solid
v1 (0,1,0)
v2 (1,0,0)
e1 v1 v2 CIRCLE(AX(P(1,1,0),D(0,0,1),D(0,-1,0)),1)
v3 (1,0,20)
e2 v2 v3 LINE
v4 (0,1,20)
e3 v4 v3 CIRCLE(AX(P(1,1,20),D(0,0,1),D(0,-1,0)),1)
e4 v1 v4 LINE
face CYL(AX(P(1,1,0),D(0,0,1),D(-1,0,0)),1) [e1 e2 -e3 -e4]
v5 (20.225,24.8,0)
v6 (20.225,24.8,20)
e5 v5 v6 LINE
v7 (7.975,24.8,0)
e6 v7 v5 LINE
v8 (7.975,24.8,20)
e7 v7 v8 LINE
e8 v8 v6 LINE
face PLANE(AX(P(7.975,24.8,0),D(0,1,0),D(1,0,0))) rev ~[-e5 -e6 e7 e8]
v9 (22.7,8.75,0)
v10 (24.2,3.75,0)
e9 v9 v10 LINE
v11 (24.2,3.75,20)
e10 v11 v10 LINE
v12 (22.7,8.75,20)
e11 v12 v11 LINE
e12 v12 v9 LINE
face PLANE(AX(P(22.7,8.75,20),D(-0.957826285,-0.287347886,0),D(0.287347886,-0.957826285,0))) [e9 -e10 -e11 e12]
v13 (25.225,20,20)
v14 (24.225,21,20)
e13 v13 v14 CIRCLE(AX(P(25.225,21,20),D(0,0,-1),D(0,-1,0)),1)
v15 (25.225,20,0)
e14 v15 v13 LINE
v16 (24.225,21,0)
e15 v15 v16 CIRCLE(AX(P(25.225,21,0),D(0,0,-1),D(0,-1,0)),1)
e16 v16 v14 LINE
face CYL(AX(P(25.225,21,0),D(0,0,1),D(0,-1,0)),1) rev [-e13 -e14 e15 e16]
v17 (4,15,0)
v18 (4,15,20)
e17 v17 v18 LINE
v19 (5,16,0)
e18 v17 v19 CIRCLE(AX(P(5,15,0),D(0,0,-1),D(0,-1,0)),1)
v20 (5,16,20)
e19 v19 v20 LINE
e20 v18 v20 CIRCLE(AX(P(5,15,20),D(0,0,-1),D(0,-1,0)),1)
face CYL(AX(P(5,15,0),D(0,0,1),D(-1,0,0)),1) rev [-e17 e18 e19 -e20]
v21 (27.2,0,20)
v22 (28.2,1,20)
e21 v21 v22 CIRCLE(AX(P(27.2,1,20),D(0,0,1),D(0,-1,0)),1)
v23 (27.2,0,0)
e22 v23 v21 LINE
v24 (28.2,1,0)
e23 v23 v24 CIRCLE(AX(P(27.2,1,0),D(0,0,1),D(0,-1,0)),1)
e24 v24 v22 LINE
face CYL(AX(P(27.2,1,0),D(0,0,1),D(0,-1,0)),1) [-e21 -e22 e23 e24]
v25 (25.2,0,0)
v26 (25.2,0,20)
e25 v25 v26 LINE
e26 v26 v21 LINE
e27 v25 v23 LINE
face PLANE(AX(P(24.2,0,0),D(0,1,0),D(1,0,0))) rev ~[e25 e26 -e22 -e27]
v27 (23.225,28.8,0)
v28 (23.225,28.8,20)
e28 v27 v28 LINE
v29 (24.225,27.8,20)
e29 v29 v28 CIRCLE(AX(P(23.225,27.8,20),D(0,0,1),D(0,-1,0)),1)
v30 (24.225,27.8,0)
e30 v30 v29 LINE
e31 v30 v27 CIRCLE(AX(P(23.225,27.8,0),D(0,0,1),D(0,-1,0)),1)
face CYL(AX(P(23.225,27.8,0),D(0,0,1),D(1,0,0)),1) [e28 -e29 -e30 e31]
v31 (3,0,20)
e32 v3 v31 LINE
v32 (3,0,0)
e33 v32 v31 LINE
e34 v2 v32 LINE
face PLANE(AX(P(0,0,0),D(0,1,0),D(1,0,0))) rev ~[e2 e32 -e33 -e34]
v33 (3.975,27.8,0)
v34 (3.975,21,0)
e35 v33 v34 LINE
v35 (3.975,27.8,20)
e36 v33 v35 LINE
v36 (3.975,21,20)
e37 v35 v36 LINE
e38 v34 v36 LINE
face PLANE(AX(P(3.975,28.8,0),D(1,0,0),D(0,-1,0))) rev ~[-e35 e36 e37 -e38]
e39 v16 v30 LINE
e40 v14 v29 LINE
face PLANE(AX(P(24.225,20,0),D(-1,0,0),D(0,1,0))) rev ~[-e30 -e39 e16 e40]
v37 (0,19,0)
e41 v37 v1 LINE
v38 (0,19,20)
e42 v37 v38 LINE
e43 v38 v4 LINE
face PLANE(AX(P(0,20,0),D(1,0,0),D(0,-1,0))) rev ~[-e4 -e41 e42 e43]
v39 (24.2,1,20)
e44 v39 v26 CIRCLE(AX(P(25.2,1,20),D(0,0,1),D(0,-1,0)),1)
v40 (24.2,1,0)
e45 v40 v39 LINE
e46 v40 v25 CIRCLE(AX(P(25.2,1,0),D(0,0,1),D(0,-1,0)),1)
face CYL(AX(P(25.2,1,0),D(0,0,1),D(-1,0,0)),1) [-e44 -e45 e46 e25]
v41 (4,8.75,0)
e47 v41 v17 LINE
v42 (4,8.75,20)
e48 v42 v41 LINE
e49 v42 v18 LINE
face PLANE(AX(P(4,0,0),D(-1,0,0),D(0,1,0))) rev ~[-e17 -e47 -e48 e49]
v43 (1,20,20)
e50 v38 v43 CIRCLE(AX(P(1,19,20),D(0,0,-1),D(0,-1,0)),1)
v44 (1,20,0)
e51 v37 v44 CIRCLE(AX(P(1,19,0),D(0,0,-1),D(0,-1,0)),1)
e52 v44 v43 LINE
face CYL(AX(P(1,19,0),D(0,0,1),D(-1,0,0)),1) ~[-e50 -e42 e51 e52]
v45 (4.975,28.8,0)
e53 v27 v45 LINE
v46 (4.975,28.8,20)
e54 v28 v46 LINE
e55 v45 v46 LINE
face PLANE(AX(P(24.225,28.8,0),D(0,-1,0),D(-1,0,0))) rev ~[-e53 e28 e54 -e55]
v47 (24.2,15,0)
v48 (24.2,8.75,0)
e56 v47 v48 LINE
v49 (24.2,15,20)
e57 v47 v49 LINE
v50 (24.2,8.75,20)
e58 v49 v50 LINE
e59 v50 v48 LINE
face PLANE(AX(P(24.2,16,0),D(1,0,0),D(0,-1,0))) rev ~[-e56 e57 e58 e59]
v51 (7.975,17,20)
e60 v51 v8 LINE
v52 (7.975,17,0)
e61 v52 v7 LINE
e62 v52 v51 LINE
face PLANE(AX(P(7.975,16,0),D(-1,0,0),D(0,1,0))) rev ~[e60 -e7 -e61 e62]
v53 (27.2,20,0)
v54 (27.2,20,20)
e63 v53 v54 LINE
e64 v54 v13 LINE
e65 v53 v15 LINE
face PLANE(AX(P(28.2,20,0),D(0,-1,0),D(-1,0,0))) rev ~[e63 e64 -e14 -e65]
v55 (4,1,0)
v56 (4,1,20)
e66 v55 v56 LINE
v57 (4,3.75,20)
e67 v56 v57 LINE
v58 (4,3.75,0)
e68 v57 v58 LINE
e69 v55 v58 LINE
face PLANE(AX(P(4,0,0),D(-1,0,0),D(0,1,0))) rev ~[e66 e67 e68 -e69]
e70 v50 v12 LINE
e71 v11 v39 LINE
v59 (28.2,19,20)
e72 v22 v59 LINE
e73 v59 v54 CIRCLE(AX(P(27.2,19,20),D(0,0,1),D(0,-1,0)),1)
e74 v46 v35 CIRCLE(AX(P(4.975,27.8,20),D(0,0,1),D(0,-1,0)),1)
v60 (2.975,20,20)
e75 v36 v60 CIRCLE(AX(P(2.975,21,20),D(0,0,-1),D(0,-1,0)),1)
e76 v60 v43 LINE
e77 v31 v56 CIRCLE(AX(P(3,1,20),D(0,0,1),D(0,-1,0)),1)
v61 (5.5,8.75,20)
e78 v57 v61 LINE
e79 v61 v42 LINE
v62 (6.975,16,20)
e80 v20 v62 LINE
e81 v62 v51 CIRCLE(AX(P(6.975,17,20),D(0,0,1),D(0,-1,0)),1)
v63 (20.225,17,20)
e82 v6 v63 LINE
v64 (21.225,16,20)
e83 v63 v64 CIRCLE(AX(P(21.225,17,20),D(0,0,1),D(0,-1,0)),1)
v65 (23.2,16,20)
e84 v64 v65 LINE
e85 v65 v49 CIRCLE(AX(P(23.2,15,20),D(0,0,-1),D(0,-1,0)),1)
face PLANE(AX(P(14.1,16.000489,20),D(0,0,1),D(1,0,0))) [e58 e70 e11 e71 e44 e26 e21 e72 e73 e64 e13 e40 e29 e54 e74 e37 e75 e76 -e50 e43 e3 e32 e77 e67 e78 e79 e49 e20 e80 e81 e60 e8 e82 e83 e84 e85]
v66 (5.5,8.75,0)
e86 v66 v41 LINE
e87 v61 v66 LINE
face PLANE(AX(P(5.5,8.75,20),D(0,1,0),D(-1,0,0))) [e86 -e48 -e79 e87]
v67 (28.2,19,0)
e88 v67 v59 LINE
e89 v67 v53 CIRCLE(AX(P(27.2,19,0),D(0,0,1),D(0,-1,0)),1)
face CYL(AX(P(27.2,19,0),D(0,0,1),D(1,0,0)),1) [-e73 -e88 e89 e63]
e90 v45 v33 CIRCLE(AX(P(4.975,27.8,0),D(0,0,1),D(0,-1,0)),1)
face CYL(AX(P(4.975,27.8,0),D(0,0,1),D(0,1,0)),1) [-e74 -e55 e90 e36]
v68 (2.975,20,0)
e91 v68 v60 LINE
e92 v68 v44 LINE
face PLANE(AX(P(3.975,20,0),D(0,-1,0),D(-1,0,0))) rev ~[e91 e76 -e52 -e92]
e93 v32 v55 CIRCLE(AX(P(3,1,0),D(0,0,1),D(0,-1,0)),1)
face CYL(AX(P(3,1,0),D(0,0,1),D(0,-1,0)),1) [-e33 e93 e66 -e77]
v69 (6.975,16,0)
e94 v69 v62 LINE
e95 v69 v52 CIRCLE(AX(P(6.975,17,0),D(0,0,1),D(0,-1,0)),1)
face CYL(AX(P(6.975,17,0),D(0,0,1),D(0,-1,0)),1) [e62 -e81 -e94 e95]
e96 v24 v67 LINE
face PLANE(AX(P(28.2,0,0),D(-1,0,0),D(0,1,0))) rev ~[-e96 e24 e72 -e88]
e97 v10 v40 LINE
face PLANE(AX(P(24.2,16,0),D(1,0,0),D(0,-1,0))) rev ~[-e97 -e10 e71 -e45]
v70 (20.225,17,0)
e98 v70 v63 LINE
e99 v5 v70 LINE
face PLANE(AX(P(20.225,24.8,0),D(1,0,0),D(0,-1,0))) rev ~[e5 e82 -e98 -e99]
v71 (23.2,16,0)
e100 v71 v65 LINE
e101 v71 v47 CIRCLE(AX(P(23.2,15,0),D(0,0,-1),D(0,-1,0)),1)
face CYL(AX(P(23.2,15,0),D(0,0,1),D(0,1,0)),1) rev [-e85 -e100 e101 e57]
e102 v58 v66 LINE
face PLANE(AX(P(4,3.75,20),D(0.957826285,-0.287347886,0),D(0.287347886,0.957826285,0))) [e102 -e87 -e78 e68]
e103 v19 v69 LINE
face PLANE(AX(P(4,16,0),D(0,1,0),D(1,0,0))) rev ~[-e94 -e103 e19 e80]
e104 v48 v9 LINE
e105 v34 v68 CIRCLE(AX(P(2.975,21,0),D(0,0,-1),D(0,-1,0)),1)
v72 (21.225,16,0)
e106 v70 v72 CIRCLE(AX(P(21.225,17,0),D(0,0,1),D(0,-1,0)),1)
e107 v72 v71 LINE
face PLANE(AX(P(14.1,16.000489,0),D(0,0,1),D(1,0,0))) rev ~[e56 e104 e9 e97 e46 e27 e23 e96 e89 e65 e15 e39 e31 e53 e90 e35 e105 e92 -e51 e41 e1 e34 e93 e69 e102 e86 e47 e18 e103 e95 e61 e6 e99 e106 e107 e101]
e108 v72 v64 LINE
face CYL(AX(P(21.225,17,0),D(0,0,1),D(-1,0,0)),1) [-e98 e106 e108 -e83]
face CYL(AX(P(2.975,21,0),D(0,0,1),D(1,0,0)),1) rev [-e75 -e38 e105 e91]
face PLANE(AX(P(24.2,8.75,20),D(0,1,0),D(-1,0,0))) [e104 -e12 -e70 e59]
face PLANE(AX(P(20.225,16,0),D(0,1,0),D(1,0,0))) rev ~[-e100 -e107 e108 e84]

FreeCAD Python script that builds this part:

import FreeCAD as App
import Part
import Sketcher
Q = App.Units.Quantity


def edges_at(feature, points):
    """Names of the edges that pass closest to the given points."""
    edges = feature.Shape.Edges
    near = lambda p: min(range(len(edges)), key=lambda i: edges[i].distToShape(Part.Vertex(*p))[0])
    return sorted({f"Edge{near(p) + 1}" for p in points})

doc = App.newDocument("Part")
body = doc.addObject("PartDesign::Body", "Body")

# Sketch on XY plane
sketch1 = body.newObject("Sketcher::SketchObject", "Sketch")
sketch1.AttachmentSupport = (doc.getObject("XY_Plane"), [""])
sketch1.MapMode = "FlatFace"
sketch1.addGeometry([
    Part.LineSegment(App.Vector(0, 20, 0), App.Vector(0, 0, 0)),  # 0
    Part.LineSegment(App.Vector(0, 0, 0), App.Vector(4, 0, 0)),  # 1
    Part.LineSegment(App.Vector(4, 0, 0), App.Vector(4, 16, 0)),  # 2
    Part.LineSegment(App.Vector(4, 16, 0), App.Vector(7.975, 16, 0)),  # 3
    Part.LineSegment(App.Vector(7.975, 16, 0), App.Vector(7.975, 24.8, 0)),  # 4
    Part.LineSegment(App.Vector(7.975, 24.8, 0), App.Vector(20.225, 24.8, 0)),  # 5
    Part.LineSegment(App.Vector(20.225, 24.8, 0), App.Vector(20.225, 16, 0)),  # 6
    Part.LineSegment(App.Vector(20.225, 16, 0), App.Vector(24.2, 16, 0)),  # 7
    Part.LineSegment(App.Vector(24.2, 16, 0), App.Vector(24.2, 0, 0)),  # 8
    Part.LineSegment(App.Vector(24.2, 0, 0), App.Vector(28.2, 0, 0)),  # 9
    Part.LineSegment(App.Vector(28.2, 0, 0), App.Vector(28.2, 20, 0)),  # 10
    Part.LineSegment(App.Vector(28.2, 20, 0), App.Vector(24.225, 20, 0)),  # 11
    Part.LineSegment(App.Vector(24.225, 20, 0), App.Vector(24.225, 28.8, 0)),  # 12
    Part.LineSegment(App.Vector(24.225, 28.8, 0), App.Vector(3.975, 28.8, 0)),  # 13
    Part.LineSegment(App.Vector(3.975, 28.8, 0), App.Vector(3.975, 20, 0)),  # 14
    Part.LineSegment(App.Vector(3.975, 20, 0), App.Vector(0, 20, 0)),  # 15
], False)
sketch1.addConstraint([
    Sketcher.Constraint("Coincident", 0, 2, 1, 1),
    Sketcher.Constraint("Coincident", 1, 2, 2, 1),
    Sketcher.Constraint("Coincident", 2, 2, 3, 1),
    Sketcher.Constraint("Coincident", 3, 2, 4, 1),
    Sketcher.Constraint("Coincident", 4, 2, 5, 1),
    Sketcher.Constraint("Coincident", 5, 2, 6, 1),
    Sketcher.Constraint("Coincident", 6, 2, 7, 1),
    Sketcher.Constraint("Coincident", 7, 2, 8, 1),
    Sketcher.Constraint("Coincident", 8, 2, 9, 1),
    Sketcher.Constraint("Coincident", 9, 2, 10, 1),
    Sketcher.Constraint("Coincident", 10, 2, 11, 1),
    Sketcher.Constraint("Coincident", 11, 2, 12, 1),
    Sketcher.Constraint("Coincident", 12, 2, 13, 1),
    Sketcher.Constraint("Coincident", 13, 2, 14, 1),
    Sketcher.Constraint("Coincident", 14, 2, 15, 1),
    Sketcher.Constraint("Coincident", 15, 2, 0, 1),
    Sketcher.Constraint("Vertical", 0),
    Sketcher.Constraint("Horizontal", 1),
    Sketcher.Constraint("Vertical", 2),
    Sketcher.Constraint("Horizontal", 3),
    Sketcher.Constraint("Vertical", 4),
    Sketcher.Constraint("Horizontal", 5),
    Sketcher.Constraint("Vertical", 6),
    Sketcher.Constraint("Horizontal", 7),
    Sketcher.Constraint("Vertical", 8),
    Sketcher.Constraint("Horizontal", 9),
    Sketcher.Constraint("Vertical", 10),
    Sketcher.Constraint("Horizontal", 11),
    Sketcher.Constraint("Vertical", 12),
    Sketcher.Constraint("Horizontal", 13),
    Sketcher.Constraint("Vertical", 14),
    Sketcher.Constraint("Horizontal", 15),
    Sketcher.Constraint("Coincident", 0, 2, -1, 1),
    Sketcher.Constraint("PointOnObject", 8, 2, -1),
    Sketcher.Constraint("Horizontal", 3, 2, 6, 2),
    Sketcher.Constraint("Horizontal", 11, 2, 14, 2),
    Sketcher.Constraint("Equal", 3, 7),
    Sketcher.Constraint("Equal", 1, 9),
    Sketcher.Constraint("Equal", 7, 11),
    Sketcher.Constraint("Equal", 11, 15),
    Sketcher.Constraint("Equal", 6, 12),
    Sketcher.Constraint("DistanceX", 1, 1, 1, 2, Q("4 mm")),
    Sketcher.Constraint("DistanceY", 0, 2, 0, 1, Q("20 mm")),
    Sketcher.Constraint("DistanceY", 2, 1, 2, 2, Q("16 mm")),
    Sketcher.Constraint("DistanceY", 4, 1, 4, 2, Q("8.8 mm")),
    Sketcher.Constraint("DistanceX", 5, 1, 5, 2, Q("12.25 mm")),
    Sketcher.Constraint("DistanceX", -1, 1, 7, 2, Q("24.2 mm")),
])
pad1 = body.newObject("PartDesign::Pad", "Pad")
pad1.Profile = sketch1
pad1.Length = 20
doc.recompute()

fillet = body.newObject("PartDesign::Fillet", "Fillet")
fillet.Base = (pad1, edges_at(pad1, [
    (4, 16, 10),
    (24.2, 16, 10),
    (7.975, 16, 10),
    (20.225, 16, 10),
    (0, 0, 10),
    (4, 0, 10),
    (24.2, 0, 10),
    (28.2, 0, 10),
    (0, 20, 10),
    (3.975, 28.8, 10),
    (3.975, 20, 10),
    (24.225, 28.8, 10),
    (24.225, 20, 10),
    (28.2, 20, 10),
]))
fillet.Radius = 1

# Sketch on XY plane
sketch2 = body.newObject("Sketcher::SketchObject", "Sketch001")
sketch2.AttachmentSupport = (doc.getObject("XY_Plane"), [""])
sketch2.MapMode = "FlatFace"
sketch2.AttachmentOffset = App.Placement(App.Vector(0, 0, 20), App.Rotation())
sketch2.addGeometry([
    Part.LineSegment(App.Vector(5.5, 8.75, 0), App.Vector(4, 8.75, 0)),  # 0
    Part.LineSegment(App.Vector(4, 8.75, 0), App.Vector(4, 3.75, 0)),  # 1
    Part.LineSegment(App.Vector(4, 3.75, 0), App.Vector(5.5, 8.75, 0)),  # 2
    Part.LineSegment(App.Vector(24.2, 3.75, 0), App.Vector(24.2, 8.75, 0)),  # 3
    Part.LineSegment(App.Vector(24.2, 8.75, 0), App.Vector(22.7, 8.75, 0)),  # 4
    Part.LineSegment(App.Vector(22.7, 8.75, 0), App.Vector(24.2, 3.75, 0)),  # 5
], False)
sketch2.addConstraint([
    Sketcher.Constraint("Coincident", 0, 2, 1, 1),
    Sketcher.Constraint("Coincident", 1, 2, 2, 1),
    Sketcher.Constraint("Coincident", 2, 2, 0, 1),
    Sketcher.Constraint("Coincident", 3, 2, 4, 1),
    Sketcher.Constraint("Coincident", 4, 2, 5, 1),
    Sketcher.Constraint("Coincident", 5, 2, 3, 1),
    Sketcher.Constraint("Horizontal", 0),
    Sketcher.Constraint("Vertical", 1),
    Sketcher.Constraint("Vertical", 3),
    Sketcher.Constraint("Horizontal", 4),
    Sketcher.Constraint("Horizontal", 2, 2, 3, 2),
    Sketcher.Constraint("Horizontal", 1, 2, 5, 2),
    Sketcher.Constraint("Equal", 0, 4),
    Sketcher.Constraint("DistanceY", 1, 2, 1, 1, Q("5 mm")),
    Sketcher.Constraint("DistanceX", 0, 2, 0, 1, Q("1.5 mm")),
    Sketcher.Constraint("DistanceX", -1, 1, 0, 2, Q("4 mm")),
    Sketcher.Constraint("DistanceX", -1, 1, 3, 2, Q("24.2 mm")),
    Sketcher.Constraint("DistanceY", -1, 1, 0, 2, Q("8.75 mm")),
])
pad2 = body.newObject("PartDesign::Pad", "Pad001")
pad2.Profile = sketch2
pad2.Length = 20
pad2.Reversed = True

doc.recompute()
